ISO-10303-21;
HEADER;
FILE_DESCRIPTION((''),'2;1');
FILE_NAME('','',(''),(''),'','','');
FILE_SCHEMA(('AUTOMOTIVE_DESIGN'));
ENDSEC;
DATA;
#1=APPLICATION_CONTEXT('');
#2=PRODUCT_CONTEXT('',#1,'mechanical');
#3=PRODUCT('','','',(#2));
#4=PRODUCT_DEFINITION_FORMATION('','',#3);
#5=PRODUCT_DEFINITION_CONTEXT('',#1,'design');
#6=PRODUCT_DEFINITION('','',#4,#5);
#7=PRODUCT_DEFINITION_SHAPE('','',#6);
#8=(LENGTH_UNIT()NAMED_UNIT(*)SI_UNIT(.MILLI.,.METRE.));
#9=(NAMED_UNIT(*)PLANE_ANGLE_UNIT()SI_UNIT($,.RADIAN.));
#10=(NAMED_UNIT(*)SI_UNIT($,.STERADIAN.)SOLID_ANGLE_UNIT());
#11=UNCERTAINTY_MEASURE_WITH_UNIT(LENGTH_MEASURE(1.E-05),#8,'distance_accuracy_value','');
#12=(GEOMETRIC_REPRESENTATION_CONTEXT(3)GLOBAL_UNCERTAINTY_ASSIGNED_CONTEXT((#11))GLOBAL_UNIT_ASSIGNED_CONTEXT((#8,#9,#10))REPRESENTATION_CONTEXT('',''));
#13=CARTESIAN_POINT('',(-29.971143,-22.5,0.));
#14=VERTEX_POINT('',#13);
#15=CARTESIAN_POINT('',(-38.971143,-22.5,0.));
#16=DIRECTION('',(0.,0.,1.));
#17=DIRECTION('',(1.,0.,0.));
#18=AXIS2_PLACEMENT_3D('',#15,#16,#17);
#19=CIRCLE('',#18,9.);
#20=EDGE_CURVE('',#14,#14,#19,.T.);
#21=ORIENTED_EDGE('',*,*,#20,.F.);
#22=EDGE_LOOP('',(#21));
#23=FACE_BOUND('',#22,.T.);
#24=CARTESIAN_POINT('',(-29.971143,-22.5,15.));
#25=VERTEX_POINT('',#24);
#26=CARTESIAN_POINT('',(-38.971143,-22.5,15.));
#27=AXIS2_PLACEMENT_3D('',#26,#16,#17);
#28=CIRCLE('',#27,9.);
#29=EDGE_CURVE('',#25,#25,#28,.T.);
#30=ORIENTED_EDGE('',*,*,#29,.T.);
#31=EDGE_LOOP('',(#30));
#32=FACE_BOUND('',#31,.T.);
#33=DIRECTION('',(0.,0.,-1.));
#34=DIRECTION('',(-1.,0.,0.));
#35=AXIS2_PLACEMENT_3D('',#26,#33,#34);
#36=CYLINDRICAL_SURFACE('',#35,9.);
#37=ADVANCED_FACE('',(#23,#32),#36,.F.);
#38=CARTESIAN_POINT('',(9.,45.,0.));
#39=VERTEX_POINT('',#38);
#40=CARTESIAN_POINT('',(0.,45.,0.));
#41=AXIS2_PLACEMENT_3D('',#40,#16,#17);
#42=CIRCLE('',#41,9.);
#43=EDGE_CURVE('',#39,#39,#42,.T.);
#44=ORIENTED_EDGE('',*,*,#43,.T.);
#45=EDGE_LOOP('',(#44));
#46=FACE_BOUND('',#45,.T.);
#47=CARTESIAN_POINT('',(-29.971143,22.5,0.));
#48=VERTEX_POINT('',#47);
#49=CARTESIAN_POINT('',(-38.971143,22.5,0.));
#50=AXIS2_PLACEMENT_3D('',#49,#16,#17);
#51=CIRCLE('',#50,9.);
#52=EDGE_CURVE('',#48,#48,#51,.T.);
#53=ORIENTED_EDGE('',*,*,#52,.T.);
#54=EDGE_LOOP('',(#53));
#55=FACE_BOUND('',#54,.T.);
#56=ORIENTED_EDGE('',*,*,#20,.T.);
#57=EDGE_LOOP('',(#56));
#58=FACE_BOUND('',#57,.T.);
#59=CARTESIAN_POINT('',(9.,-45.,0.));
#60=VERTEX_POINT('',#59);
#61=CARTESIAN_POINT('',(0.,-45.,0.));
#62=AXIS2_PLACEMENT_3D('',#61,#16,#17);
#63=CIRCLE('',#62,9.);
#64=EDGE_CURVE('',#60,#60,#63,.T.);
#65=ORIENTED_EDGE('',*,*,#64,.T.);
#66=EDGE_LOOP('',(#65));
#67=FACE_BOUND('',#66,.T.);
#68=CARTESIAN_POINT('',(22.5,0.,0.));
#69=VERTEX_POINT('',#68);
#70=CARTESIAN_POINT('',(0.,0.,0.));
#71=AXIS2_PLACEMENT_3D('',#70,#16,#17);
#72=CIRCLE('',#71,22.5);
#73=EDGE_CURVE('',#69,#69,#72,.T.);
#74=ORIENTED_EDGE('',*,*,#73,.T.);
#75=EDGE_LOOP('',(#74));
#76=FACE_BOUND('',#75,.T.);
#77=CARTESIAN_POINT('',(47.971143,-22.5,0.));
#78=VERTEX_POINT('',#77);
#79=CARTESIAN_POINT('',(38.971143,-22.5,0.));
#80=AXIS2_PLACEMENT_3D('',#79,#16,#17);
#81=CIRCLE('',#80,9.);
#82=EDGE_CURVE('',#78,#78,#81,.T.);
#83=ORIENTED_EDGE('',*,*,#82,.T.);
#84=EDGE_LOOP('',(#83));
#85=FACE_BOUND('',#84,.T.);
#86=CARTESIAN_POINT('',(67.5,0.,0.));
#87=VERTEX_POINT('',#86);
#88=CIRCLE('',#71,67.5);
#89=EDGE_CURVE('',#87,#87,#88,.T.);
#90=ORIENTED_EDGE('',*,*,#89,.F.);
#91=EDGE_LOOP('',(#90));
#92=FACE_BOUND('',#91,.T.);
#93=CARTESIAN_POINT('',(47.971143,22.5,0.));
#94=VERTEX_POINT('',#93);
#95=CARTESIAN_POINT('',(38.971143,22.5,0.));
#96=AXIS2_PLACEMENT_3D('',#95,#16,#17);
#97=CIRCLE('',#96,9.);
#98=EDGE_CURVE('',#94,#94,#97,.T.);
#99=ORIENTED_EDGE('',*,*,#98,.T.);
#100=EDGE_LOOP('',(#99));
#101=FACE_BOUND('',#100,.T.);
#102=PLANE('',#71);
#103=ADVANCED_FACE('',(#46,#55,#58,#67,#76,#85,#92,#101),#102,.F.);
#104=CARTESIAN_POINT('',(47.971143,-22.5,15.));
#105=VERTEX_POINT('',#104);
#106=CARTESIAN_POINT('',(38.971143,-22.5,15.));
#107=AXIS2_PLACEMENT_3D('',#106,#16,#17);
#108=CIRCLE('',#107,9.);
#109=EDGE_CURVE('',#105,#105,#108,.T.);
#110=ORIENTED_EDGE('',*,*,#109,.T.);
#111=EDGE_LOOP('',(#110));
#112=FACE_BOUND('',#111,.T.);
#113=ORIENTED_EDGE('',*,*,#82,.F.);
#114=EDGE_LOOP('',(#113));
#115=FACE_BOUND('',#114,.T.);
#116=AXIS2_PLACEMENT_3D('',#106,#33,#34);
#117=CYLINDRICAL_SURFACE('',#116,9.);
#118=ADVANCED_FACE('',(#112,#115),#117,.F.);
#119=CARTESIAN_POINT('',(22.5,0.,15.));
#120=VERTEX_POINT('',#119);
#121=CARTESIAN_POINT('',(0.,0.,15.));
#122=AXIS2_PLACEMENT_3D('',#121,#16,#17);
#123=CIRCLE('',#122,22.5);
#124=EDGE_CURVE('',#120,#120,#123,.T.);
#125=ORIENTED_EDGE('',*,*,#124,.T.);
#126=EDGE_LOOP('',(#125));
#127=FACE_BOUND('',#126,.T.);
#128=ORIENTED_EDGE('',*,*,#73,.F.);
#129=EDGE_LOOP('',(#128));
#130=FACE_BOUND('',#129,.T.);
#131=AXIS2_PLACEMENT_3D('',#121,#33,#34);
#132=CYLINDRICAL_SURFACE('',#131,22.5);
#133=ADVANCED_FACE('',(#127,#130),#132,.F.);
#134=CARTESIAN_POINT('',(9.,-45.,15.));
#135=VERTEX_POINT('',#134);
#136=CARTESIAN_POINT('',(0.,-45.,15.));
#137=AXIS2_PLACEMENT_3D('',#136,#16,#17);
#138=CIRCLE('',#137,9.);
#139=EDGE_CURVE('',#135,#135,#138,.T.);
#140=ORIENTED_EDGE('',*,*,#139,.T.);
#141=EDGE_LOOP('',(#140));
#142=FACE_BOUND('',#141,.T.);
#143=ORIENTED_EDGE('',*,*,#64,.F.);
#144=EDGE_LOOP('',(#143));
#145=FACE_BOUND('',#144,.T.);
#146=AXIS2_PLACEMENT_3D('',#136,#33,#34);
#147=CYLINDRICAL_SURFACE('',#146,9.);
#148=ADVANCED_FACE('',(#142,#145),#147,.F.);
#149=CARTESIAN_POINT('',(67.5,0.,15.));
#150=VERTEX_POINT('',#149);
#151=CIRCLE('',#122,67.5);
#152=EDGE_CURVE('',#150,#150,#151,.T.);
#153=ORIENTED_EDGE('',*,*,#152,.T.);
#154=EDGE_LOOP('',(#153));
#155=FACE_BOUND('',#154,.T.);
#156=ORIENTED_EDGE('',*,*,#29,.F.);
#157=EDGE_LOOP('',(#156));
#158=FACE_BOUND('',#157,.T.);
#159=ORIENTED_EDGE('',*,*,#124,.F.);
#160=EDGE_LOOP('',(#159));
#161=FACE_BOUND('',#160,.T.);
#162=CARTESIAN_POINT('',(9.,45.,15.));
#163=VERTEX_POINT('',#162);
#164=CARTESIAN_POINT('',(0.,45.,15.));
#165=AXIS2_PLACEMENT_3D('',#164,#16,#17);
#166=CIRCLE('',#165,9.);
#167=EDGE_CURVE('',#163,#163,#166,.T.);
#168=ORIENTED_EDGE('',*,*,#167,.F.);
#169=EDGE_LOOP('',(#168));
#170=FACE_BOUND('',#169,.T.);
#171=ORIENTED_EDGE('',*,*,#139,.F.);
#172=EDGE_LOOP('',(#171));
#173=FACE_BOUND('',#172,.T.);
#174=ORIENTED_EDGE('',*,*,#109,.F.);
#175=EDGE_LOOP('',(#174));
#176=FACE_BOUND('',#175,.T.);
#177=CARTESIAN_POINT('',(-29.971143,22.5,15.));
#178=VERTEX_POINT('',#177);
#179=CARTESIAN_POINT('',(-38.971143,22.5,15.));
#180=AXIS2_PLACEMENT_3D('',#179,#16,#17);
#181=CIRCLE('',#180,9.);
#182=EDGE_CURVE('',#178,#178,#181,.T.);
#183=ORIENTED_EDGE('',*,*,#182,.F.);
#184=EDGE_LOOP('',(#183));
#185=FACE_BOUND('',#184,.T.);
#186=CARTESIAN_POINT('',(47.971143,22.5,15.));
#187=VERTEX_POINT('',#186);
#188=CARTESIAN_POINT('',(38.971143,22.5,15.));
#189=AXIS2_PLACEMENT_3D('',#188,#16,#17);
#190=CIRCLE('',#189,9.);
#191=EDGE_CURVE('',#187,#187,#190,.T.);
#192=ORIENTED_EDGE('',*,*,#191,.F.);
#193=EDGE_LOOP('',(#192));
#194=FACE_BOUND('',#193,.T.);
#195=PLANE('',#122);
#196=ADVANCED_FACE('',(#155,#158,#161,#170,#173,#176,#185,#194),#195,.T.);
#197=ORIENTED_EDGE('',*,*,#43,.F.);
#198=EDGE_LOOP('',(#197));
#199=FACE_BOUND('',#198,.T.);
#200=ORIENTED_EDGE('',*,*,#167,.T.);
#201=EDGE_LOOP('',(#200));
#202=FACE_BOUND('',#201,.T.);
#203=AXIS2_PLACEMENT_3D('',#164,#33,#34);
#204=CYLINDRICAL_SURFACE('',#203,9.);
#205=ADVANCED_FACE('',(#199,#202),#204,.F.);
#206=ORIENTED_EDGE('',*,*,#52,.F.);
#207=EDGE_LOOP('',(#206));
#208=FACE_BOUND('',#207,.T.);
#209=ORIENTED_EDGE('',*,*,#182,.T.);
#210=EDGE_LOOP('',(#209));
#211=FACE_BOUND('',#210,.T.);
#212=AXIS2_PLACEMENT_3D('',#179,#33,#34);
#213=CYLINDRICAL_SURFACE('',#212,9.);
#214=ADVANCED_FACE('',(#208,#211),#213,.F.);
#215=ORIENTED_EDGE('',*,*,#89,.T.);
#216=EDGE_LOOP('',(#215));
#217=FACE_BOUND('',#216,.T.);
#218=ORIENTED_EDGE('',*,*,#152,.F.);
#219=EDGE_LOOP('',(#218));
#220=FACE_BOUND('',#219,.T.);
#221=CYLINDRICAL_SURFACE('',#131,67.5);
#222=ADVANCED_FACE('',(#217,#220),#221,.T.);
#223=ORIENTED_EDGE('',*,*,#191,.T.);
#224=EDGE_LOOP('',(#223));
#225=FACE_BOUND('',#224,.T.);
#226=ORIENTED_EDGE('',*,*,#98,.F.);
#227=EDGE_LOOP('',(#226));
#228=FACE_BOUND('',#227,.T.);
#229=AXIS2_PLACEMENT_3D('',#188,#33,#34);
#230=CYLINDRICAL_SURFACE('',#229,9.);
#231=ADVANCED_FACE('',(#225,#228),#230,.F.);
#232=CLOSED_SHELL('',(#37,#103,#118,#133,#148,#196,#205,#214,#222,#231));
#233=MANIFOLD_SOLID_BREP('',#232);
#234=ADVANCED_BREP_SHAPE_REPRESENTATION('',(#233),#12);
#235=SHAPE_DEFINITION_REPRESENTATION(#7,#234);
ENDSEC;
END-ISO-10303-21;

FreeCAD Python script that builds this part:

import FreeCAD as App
import Part
import Sketcher
from FreeCAD import Vector

doc = App.newDocument("Part")
body = doc.addObject("PartDesign::Body", "Body")

sketch1 = body.newObject("Sketcher::SketchObject", "Sketch")
sketch1.AttachmentSupport = (doc.getObject("XY_Plane"), [""])
sketch1.MapMode = "FlatFace"
sketch1.addGeometry(Part.Circle(Vector(0, 0, 0), Vector(0, 0, 1), 68), False)
sketch1.addGeometry(Part.Circle(Vector(-39, -22, 0), Vector(0, 0, 1), 9), False)
sketch1.addGeometry(Part.Circle(Vector(0, -45, 0), Vector(0, 0, 1), 9), False)
sketch1.addGeometry(Part.Circle(Vector(39, -22, 0), Vector(0, 0, 1), 9), False)
sketch1.addGeometry(Part.Circle(Vector(-39, 22, 0), Vector(0, 0, 1), 9), False)
sketch1.addGeometry(Part.Circle(Vector(0, 0, 0), Vector(0, 0, 1), 22), False)
sketch1.addGeometry(Part.Circle(Vector(39, 22, 0), Vector(0, 0, 1), 9), False)
sketch1.addGeometry(Part.Circle(Vector(0, 45, 0), Vector(0, 0, 1), 9), False)
sketch1.addConstraint(Sketcher.Constraint("Coincident", 0, 3, -1, 1))
sketch1.addConstraint(Sketcher.Constraint("Coincident", 5, 3, -1, 1))
sketch1.addConstraint(Sketcher.Constraint("Equal", 1, 2))
sketch1.addConstraint(Sketcher.Constraint("Equal", 2, 3))
sketch1.addConstraint(Sketcher.Constraint("Equal", 3, 4))
sketch1.addConstraint(Sketcher.Constraint("Equal", 4, 6))
sketch1.addConstraint(Sketcher.Constraint("Equal", 6, 7))
sketch1.addConstraint(Sketcher.Constraint("Symmetric", 3, 3, 4, 3, -1, 1))
sketch1.addConstraint(Sketcher.Constraint("Symmetric", 1, 3, 6, 3, -1, 1))
sketch1.addConstraint(Sketcher.Constraint("Symmetric", 2, 3, 7, 3, -1, 1))
sketch1.addConstraint(Sketcher.Constraint("Symmetric", 1, 3, 3, 3, -2))
sketch1.addConstraint(Sketcher.Constraint("PointOnObject", 2, 3, -2))
sketch1.addConstraint(Sketcher.Constraint("Diameter", 0, 135.0))
sketch1.addConstraint(Sketcher.Constraint("Diameter", 1, 18.0))
sketch1.addConstraint(Sketcher.Constraint("Diameter", 5, 45.0))
sketch1.addConstraint(Sketcher.Constraint("DistanceY", 2, 3, -1, 1, 45.0))
sketch1.addConstraint(Sketcher.Constraint("DistanceY", 1, 3, 4, 3, 45.0))
sketch1.addConstraint(Sketcher.Constraint("DistanceX", 1, 3, -1, 1, 38.971143))
pad1 = body.newObject("PartDesign::Pad", "Pad")
pad1.Profile = sketch1
pad1.Length = 15

doc.recompute()
